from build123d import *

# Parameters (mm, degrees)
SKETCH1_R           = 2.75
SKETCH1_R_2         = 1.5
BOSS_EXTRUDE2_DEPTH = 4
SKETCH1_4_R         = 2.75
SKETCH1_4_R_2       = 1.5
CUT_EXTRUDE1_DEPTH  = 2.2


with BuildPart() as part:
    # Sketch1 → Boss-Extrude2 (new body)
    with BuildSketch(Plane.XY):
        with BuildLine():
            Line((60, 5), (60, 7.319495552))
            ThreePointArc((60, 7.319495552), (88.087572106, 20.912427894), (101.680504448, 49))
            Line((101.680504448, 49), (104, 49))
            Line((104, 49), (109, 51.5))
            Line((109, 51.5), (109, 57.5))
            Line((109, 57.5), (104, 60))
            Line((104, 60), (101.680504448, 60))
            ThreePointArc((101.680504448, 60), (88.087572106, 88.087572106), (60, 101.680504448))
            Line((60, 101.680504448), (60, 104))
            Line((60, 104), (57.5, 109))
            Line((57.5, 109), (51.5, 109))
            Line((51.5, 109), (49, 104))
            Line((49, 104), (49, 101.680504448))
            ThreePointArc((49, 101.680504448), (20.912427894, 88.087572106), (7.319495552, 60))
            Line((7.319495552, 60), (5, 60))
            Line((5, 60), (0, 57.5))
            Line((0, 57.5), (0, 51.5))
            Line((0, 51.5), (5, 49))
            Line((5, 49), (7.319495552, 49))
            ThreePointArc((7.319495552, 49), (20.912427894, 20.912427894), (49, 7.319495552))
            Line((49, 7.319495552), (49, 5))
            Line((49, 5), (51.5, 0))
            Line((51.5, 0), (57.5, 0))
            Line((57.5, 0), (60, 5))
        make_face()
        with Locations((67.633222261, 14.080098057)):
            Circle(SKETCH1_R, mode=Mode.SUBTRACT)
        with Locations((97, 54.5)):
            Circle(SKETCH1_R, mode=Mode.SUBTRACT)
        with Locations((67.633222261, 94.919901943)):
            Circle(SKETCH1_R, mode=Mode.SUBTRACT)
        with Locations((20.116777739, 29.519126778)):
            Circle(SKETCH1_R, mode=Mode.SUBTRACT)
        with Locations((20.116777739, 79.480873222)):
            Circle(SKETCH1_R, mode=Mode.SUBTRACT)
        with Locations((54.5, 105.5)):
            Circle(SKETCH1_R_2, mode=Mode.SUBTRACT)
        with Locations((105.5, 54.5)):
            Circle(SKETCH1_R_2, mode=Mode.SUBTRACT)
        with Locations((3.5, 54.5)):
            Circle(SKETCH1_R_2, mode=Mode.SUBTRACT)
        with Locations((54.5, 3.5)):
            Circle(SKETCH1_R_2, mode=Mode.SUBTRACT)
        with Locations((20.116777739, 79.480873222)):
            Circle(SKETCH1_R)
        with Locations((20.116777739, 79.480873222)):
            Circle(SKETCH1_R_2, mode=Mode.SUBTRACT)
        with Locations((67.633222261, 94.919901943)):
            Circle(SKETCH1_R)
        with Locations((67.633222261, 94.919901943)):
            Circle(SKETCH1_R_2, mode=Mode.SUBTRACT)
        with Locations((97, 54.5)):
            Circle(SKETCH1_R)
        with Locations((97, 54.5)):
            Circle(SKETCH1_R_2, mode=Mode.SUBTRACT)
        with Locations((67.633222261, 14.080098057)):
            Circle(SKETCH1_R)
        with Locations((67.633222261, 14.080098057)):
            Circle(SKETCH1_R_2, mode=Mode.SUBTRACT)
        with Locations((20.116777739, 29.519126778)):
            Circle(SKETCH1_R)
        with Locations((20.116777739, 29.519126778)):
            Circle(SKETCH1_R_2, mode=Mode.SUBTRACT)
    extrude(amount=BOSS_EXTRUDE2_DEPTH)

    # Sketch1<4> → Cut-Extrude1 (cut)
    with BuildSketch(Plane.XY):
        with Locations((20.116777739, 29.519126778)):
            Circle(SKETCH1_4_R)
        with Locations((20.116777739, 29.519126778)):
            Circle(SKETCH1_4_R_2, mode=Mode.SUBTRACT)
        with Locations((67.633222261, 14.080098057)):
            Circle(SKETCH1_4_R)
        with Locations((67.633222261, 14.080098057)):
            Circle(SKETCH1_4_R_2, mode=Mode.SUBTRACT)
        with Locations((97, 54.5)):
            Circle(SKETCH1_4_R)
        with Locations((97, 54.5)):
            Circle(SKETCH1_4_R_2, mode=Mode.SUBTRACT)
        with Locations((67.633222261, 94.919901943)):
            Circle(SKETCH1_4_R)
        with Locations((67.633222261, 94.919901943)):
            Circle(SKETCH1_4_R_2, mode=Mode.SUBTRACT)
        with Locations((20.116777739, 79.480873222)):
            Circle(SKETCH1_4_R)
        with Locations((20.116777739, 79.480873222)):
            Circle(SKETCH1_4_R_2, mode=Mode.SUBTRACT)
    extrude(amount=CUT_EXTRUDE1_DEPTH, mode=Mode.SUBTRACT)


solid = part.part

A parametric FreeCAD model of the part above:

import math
import FreeCAD as App
import Part
import Sketcher

V = App.Vector
Q = App.Units.Quantity

doc = App.newDocument("Part")
body = doc.addObject("PartDesign::Body", "Body")

# Sketch on XY plane
sketch1 = body.newObject("Sketcher::SketchObject", "Sketch")
sketch1.AttachmentSupport = (doc.getObject("XY_Plane"), [""])
sketch1.MapMode = "FlatFace"
sketch1.addGeometry(Part.LineSegment(V(60, 5, 0), V(60, 7.319496, 0)), False)
sketch1.addGeometry(Part.ArcOfCircle(Part.Circle(V(54.5, 54.5, 0), V(0, 0, 1), 47.5), math.radians(-83.350837), math.radians(-6.649163)), False)
sketch1.addGeometry(Part.LineSegment(V(101.680504, 49, 0), V(104, 49, 0)), False)
sketch1.addGeometry(Part.LineSegment(V(104, 49, 0), V(109, 51.5, 0)), False)
sketch1.addGeometry(Part.LineSegment(V(109, 51.5, 0), V(109, 57.5, 0)), False)
sketch1.addGeometry(Part.LineSegment(V(109, 57.5, 0), V(104, 60, 0)), False)
sketch1.addGeometry(Part.LineSegment(V(104, 60, 0), V(101.680504, 60, 0)), False)
sketch1.addGeometry(Part.ArcOfCircle(Part.Circle(V(54.5, 54.5, 0), V(0, 0, 1), 47.5), math.radians(6.649163), math.radians(83.350837)), False)
sketch1.addGeometry(Part.LineSegment(V(60, 101.680504, 0), V(60, 104, 0)), False)
sketch1.addGeometry(Part.LineSegment(V(60, 104, 0), V(57.5, 109, 0)), False)
sketch1.addGeometry(Part.LineSegment(V(57.5, 109, 0), V(51.5, 109, 0)), False)
sketch1.addGeometry(Part.LineSegment(V(51.5, 109, 0), V(49, 104, 0)), False)
sketch1.addGeometry(Part.LineSegment(V(49, 104, 0), V(49, 101.680504, 0)), False)
sketch1.addGeometry(Part.ArcOfCircle(Part.Circle(V(54.5, 54.5, 0), V(0, 0, 1), 47.5), math.radians(96.649163), math.radians(173.350837)), False)
sketch1.addGeometry(Part.LineSegment(V(7.319496, 60, 0), V(5, 60, 0)), False)
sketch1.addGeometry(Part.LineSegment(V(5, 60, 0), V(0, 57.5, 0)), False)
sketch1.addGeometry(Part.LineSegment(V(0, 57.5, 0), V(0, 51.5, 0)), False)
sketch1.addGeometry(Part.LineSegment(V(0, 51.5, 0), V(5, 49, 0)), False)
sketch1.addGeometry(Part.LineSegment(V(5, 49, 0), V(7.319496, 49, 0)), False)
sketch1.addGeometry(Part.ArcOfCircle(Part.Circle(V(54.5, 54.5, 0), V(0, 0, 1), 47.5), math.radians(-173.350837), math.radians(-96.649163)), False)
sketch1.addGeometry(Part.LineSegment(V(49, 7.319496, 0), V(49, 5, 0)), False)
sketch1.addGeometry(Part.LineSegment(V(49, 5, 0), V(51.5, 0, 0)), False)
sketch1.addGeometry(Part.LineSegment(V(51.5, 0, 0), V(57.5, 0, 0)), False)
sketch1.addGeometry(Part.LineSegment(V(57.5, 0, 0), V(60, 5, 0)), False)
sketch1.addGeometry(Part.Circle(V(20.116778, 29.519127, 0), V(0, 0, 1), 1.5), False)
sketch1.addGeometry(Part.Circle(V(54.5, 3.5, 0), V(0, 0, 1), 1.5), False)
sketch1.addGeometry(Part.Circle(V(67.633222, 14.080098, 0), V(0, 0, 1), 1.5), False)
sketch1.addGeometry(Part.Circle(V(3.5, 54.5, 0), V(0, 0, 1), 1.5), False)
sketch1.addGeometry(Part.Circle(V(20.116778, 79.480873, 0), V(0, 0, 1), 1.5), False)
sketch1.addGeometry(Part.Circle(V(97, 54.5, 0), V(0, 0, 1), 1.5), False)
sketch1.addGeometry(Part.Circle(V(105.5, 54.5, 0), V(0, 0, 1), 1.5), False)
sketch1.addGeometry(Part.Circle(V(54.5, 105.5, 0), V(0, 0, 1), 1.5), False)
sketch1.addGeometry(Part.Circle(V(67.633222, 94.919902, 0), V(0, 0, 1), 1.5), False)
sketch1.addConstraint(Sketcher.Constraint("Coincident", 0, 2, 1, 1))
sketch1.addConstraint(Sketcher.Constraint("Coincident", 1, 2, 2, 1))
sketch1.addConstraint(Sketcher.Constraint("Coincident", 2, 2, 3, 1))
sketch1.addConstraint(Sketcher.Constraint("Coincident", 3, 2, 4, 1))
sketch1.addConstraint(Sketcher.Constraint("Coincident", 4, 2, 5, 1))
sketch1.addConstraint(Sketcher.Constraint("Coincident", 5, 2, 6, 1))
sketch1.addConstraint(Sketcher.Constraint("Coincident", 6, 2, 7, 1))
sketch1.addConstraint(Sketcher.Constraint("Coincident", 7, 2, 8, 1))
sketch1.addConstraint(Sketcher.Constraint("Coincident", 8, 2, 9, 1))
sketch1.addConstraint(Sketcher.Constraint("Coincident", 9, 2, 10, 1))
sketch1.addConstraint(Sketcher.Constraint("Coincident", 10, 2, 11, 1))
sketch1.addConstraint(Sketcher.Constraint("Coincident", 11, 2, 12, 1))
sketch1.addConstraint(Sketcher.Constraint("Coincident", 12, 2, 13, 1))
sketch1.addConstraint(Sketcher.Constraint("Coincident", 13, 2, 14, 1))
sketch1.addConstraint(Sketcher.Constraint("Coincident", 14, 2, 15, 1))
sketch1.addConstraint(Sketcher.Constraint("Coincident", 15, 2, 16, 1))
sketch1.addConstraint(Sketcher.Constraint("Coincident", 16, 2, 17, 1))
sketch1.addConstraint(Sketcher.Constraint("Coincident", 17, 2, 18, 1))
sketch1.addConstraint(Sketcher.Constraint("Coincident", 18, 2, 19, 1))
sketch1.addConstraint(Sketcher.Constraint("Coincident", 19, 2, 20, 1))
sketch1.addConstraint(Sketcher.Constraint("Coincident", 20, 2, 21, 1))
sketch1.addConstraint(Sketcher.Constraint("Coincident", 21, 2, 22, 1))
sketch1.addConstraint(Sketcher.Constraint("Coincident", 22, 2, 23, 1))
sketch1.addConstraint(Sketcher.Constraint("Coincident", 23, 2, 0, 1))
sketch1.addConstraint(Sketcher.Constraint("Vertical", 0))
sketch1.addConstraint(Sketcher.Constraint("Horizontal", 2))
sketch1.addConstraint(Sketcher.Constraint("Vertical", 4))
sketch1.addConstraint(Sketcher.Constraint("Horizontal", 6))
sketch1.addConstraint(Sketcher.Constraint("Vertical", 8))
sketch1.addConstraint(Sketcher.Constraint("Horizontal", 10))
sketch1.addConstraint(Sketcher.Constraint("Vertical", 12))
sketch1.addConstraint(Sketcher.Constraint("Horizontal", 14))
sketch1.addConstraint(Sketcher.Constraint("Vertical", 16))
sketch1.addConstraint(Sketcher.Constraint("Horizontal", 18))
sketch1.addConstraint(Sketcher.Constraint("Vertical", 20))
sketch1.addConstraint(Sketcher.Constraint("Horizontal", 22))
sketch1.addConstraint(Sketcher.Constraint("Coincident", 7, 3, 1, 3))
sketch1.addConstraint(Sketcher.Constraint("Coincident", 13, 3, 1, 3))
sketch1.addConstraint(Sketcher.Constraint("Coincident", 19, 3, 1, 3))
sketch1.addConstraint(Sketcher.Constraint("Equal", 1, 7))
sketch1.addConstraint(Sketcher.Constraint("Equal", 7, 13))
sketch1.addConstraint(Sketcher.Constraint("Equal", 13, 19))
sketch1.addConstraint(Sketcher.Constraint("Equal", 24, 25))
sketch1.addConstraint(Sketcher.Constraint("Equal", 25, 26))
sketch1.addConstraint(Sketcher.Constraint("Equal", 26, 27))
sketch1.addConstraint(Sketcher.Constraint("Equal", 27, 28))
sketch1.addConstraint(Sketcher.Constraint("Equal", 28, 29))
sketch1.addConstraint(Sketcher.Constraint("Equal", 29, 30))
sketch1.addConstraint(Sketcher.Constraint("Equal", 30, 31))
sketch1.addConstraint(Sketcher.Constraint("Equal", 31, 32))
sketch1.addConstraint(Sketcher.Constraint("PointOnObject", 15, 2, -2))
sketch1.addConstraint(Sketcher.Constraint("PointOnObject", 21, 2, -1))
sketch1.addConstraint(Sketcher.Constraint("Perpendicular", 3, 9))
sketch1.addConstraint(Sketcher.Constraint("Perpendicular", 5, 11))
sketch1.addConstraint(Sketcher.Constraint("Perpendicular", 9, 15))
sketch1.addConstraint(Sketcher.Constraint("Perpendicular", 11, 17))
sketch1.addConstraint(Sketcher.Constraint("Perpendicular", 15, 21))
sketch1.addConstraint(Sketcher.Constraint("Perpendicular", 17, 23))
sketch1.addConstraint(Sketcher.Constraint("Horizontal", 19, 3, 27, 3))
sketch1.addConstraint(Sketcher.Constraint("Horizontal", 27, 3, 29, 3))
sketch1.addConstraint(Sketcher.Constraint("Horizontal", 29, 3, 30, 3))
sketch1.addConstraint(Sketcher.Constraint("Horizontal", 8, 2, 11, 2))
sketch1.addConstraint(Sketcher.Constraint("Horizontal", 7, 2, 12, 2))
sketch1.addConstraint(Sketcher.Constraint("Horizontal", 6, 2, 13, 2))
sketch1.addConstraint(Sketcher.Constraint("Horizontal", 4, 2, 15, 2))
sketch1.addConstraint(Sketcher.Constraint("Horizontal", 3, 2, 16, 2))
sketch1.addConstraint(Sketcher.Constraint("Horizontal", 2, 2, 17, 2))
sketch1.addConstraint(Sketcher.Constraint("Horizontal", 0, 2, 19, 2))
sketch1.addConstraint(Sketcher.Constraint("Horizontal", 20, 2, 23, 2))
sketch1.addConstraint(Sketcher.Constraint("Vertical", 19, 3, 25, 3))
sketch1.addConstraint(Sketcher.Constraint("Vertical", 24, 3, 28, 3))
sketch1.addConstraint(Sketcher.Constraint("Vertical", 25, 3, 31, 3))
sketch1.addConstraint(Sketcher.Constraint("Vertical", 26, 3, 32, 3))
sketch1.addConstraint(Sketcher.Constraint("Vertical", 2, 2, 5, 2))
sketch1.addConstraint(Sketcher.Constraint("Vertical", 1, 2, 6, 2))
sketch1.addConstraint(Sketcher.Constraint("Vertical", 0, 2, 7, 2))
sketch1.addConstraint(Sketcher.Constraint("Vertical", 14, 2, 17, 2))
sketch1.addConstraint(Sketcher.Constraint("Vertical", 10, 2, 21, 2))
sketch1.addConstraint(Sketcher.Constraint("Equal", 6, 14))
sketch1.addConstraint(Sketcher.Constraint("Equal", 18, 0))
sketch1.addConstraint(Sketcher.Constraint("Equal", 22, 4))
sketch1.addConstraint(Sketcher.Constraint("Equal", 0, 8))
sketch1.addConstraint(Sketcher.Constraint("Equal", 5, 9))
sketch1.addConstraint(Sketcher.Constraint("Diameter", 24, Q("3 mm")))
sketch1.addConstraint(Sketcher.Constraint("Radius", 1, Q("47.5 mm")))
sketch1.addConstraint(Sketcher.Constraint("DistanceX", 10, 2, 10, 1, Q("6 mm")))
sketch1.addConstraint(Sketcher.Constraint("DistanceX", -1, 1, 29, 3, Q("97 mm")))
sketch1.addConstraint(Sketcher.Constraint("DistanceX", -1, 1, 0, 2, Q("60 mm")))
sketch1.addConstraint(Sketcher.Constraint("DistanceY", -1, 1, 1, 2, Q("49 mm")))
sketch1.addConstraint(Sketcher.Constraint("DistanceX", -1, 1, 2, 2, Q("104 mm")))
sketch1.addConstraint(Sketcher.Constraint("DistanceY", 25, 3, 7, 3, Q("51 mm")))
sketch1.addConstraint(Sketcher.Constraint("DistanceX", 27, 3, 1, 3, Q("51 mm")))
sketch1.addConstraint(Sketcher.Constraint("DistanceX", 13, 3, 30, 3, Q("51 mm")))
sketch1.addConstraint(Sketcher.Constraint("DistanceY", 1, 3, 31, 3, Q("51 mm")))
sketch1.addConstraint(Sketcher.Constraint("DistanceY", -1, 1, 26, 3, Q("14.080098 mm")))
sketch1.addConstraint(Sketcher.Constraint("DistanceY", -1, 1, 32, 3, Q("94.919902 mm")))
sketch1.addConstraint(Sketcher.Constraint("DistanceY", 0, 2, 24, 3, Q("22.199631 mm")))
sketch1.addConstraint(Sketcher.Constraint("DistanceY", 28, 3, 7, 2, Q("22.199631 mm")))
sketch1.addConstraint(Sketcher.Constraint("DistanceX", -1, 1, 24, 3, Q("20.116778 mm")))
sketch1.addConstraint(Sketcher.Constraint("DistanceX", -1, 1, 26, 3, Q("67.633222 mm")))
pad1 = body.newObject("PartDesign::Pad", "Pad")
pad1.Profile = sketch1
pad1.Length = 4

# Sketch on XY plane
sketch2 = body.newObject("Sketcher::SketchObject", "Sketch001")
sketch2.AttachmentSupport = (doc.getObject("XY_Plane"), [""])
sketch2.MapMode = "FlatFace"
sketch2.addGeometry(Part.Circle(V(20.116778, 29.519127, 0), V(0, 0, 1), 2.75), False)
sketch2.addGeometry(Part.Circle(V(20.116778, 29.519127, 0), V(0, 0, 1), 1.5), False)
sketch2.addGeometry(Part.Circle(V(67.633222, 14.080098, 0), V(0, 0, 1), 2.75), False)
sketch2.addGeometry(Part.Circle(V(67.633222, 14.080098, 0), V(0, 0, 1), 1.5), False)
sketch2.addGeometry(Part.Circle(V(97, 54.5, 0), V(0, 0, 1), 2.75), False)
sketch2.addGeometry(Part.Circle(V(97, 54.5, 0), V(0, 0, 1), 1.5), False)
sketch2.addGeometry(Part.Circle(V(67.633222, 94.919902, 0), V(0, 0, 1), 2.75), False)
sketch2.addGeometry(Part.Circle(V(67.633222, 94.919902, 0), V(0, 0, 1), 1.5), False)
sketch2.addGeometry(Part.Circle(V(20.116778, 79.480873, 0), V(0, 0, 1), 2.75), False)
sketch2.addGeometry(Part.Circle(V(20.116778, 79.480873, 0), V(0, 0, 1), 1.5), False)
sketch2.addConstraint(Sketcher.Constraint("Coincident", 1, 3, 0, 3))
sketch2.addConstraint(Sketcher.Constraint("Coincident", 3, 3, 2, 3))
sketch2.addConstraint(Sketcher.Constraint("Coincident", 5, 3, 4, 3))
sketch2.addConstraint(Sketcher.Constraint("Coincident", 7, 3, 6, 3))
sketch2.addConstraint(Sketcher.Constraint("Coincident", 9, 3, 8, 3))
sketch2.addConstraint(Sketcher.Constraint("Equal", 0, 2))
sketch2.addConstraint(Sketcher.Constraint("Equal", 1, 3))
sketch2.addConstraint(Sketcher.Constraint("Equal", 2, 4))
sketch2.addConstraint(Sketcher.Constraint("Equal", 3, 5))
sketch2.addConstraint(Sketcher.Constraint("Equal", 4, 6))
sketch2.addConstraint(Sketcher.Constraint("Equal", 5, 7))
sketch2.addConstraint(Sketcher.Constraint("Equal", 6, 8))
sketch2.addConstraint(Sketcher.Constraint("Equal", 7, 9))
sketch2.addConstraint(Sketcher.Constraint("Vertical", 3, 3, 6, 3))
sketch2.addConstraint(Sketcher.Constraint("Vertical", 1, 3, 8, 3))
sketch2.addConstraint(Sketcher.Constraint("Diameter", 1, Q("3 mm")))
sketch2.addConstraint(Sketcher.Constraint("Diameter", 0, Q("5.5 mm")))
sketch2.addConstraint(Sketcher.Constraint("DistanceX", -1, 1, 4, 3, Q("97 mm")))
sketch2.addConstraint(Sketcher.Constraint("DistanceY", -1, 1, 4, 3, Q("54.5 mm")))
sketch2.addConstraint(Sketcher.Constraint("DistanceY", -1, 1, 2, 3, Q("14.080098 mm")))
sketch2.addConstraint(Sketcher.Constraint("DistanceY", -1, 1, 6, 3, Q("94.919902 mm")))
sketch2.addConstraint(Sketcher.Constraint("DistanceY", 2, 3, 0, 3, Q("15.439029 mm")))
sketch2.addConstraint(Sketcher.Constraint("DistanceY", 8, 3, 6, 3, Q("15.439029 mm")))
sketch2.addConstraint(Sketcher.Constraint("DistanceX", -1, 1, 0, 3, Q("20.116778 mm")))
sketch2.addConstraint(Sketcher.Constraint("DistanceX", -1, 1, 2, 3, Q("67.633222 mm")))
pocket1 = body.newObject("PartDesign::Pocket", "Pocket")
pocket1.Profile = sketch2
pocket1.Length = 2.2
pocket1.Reversed = True

doc.recompute()
